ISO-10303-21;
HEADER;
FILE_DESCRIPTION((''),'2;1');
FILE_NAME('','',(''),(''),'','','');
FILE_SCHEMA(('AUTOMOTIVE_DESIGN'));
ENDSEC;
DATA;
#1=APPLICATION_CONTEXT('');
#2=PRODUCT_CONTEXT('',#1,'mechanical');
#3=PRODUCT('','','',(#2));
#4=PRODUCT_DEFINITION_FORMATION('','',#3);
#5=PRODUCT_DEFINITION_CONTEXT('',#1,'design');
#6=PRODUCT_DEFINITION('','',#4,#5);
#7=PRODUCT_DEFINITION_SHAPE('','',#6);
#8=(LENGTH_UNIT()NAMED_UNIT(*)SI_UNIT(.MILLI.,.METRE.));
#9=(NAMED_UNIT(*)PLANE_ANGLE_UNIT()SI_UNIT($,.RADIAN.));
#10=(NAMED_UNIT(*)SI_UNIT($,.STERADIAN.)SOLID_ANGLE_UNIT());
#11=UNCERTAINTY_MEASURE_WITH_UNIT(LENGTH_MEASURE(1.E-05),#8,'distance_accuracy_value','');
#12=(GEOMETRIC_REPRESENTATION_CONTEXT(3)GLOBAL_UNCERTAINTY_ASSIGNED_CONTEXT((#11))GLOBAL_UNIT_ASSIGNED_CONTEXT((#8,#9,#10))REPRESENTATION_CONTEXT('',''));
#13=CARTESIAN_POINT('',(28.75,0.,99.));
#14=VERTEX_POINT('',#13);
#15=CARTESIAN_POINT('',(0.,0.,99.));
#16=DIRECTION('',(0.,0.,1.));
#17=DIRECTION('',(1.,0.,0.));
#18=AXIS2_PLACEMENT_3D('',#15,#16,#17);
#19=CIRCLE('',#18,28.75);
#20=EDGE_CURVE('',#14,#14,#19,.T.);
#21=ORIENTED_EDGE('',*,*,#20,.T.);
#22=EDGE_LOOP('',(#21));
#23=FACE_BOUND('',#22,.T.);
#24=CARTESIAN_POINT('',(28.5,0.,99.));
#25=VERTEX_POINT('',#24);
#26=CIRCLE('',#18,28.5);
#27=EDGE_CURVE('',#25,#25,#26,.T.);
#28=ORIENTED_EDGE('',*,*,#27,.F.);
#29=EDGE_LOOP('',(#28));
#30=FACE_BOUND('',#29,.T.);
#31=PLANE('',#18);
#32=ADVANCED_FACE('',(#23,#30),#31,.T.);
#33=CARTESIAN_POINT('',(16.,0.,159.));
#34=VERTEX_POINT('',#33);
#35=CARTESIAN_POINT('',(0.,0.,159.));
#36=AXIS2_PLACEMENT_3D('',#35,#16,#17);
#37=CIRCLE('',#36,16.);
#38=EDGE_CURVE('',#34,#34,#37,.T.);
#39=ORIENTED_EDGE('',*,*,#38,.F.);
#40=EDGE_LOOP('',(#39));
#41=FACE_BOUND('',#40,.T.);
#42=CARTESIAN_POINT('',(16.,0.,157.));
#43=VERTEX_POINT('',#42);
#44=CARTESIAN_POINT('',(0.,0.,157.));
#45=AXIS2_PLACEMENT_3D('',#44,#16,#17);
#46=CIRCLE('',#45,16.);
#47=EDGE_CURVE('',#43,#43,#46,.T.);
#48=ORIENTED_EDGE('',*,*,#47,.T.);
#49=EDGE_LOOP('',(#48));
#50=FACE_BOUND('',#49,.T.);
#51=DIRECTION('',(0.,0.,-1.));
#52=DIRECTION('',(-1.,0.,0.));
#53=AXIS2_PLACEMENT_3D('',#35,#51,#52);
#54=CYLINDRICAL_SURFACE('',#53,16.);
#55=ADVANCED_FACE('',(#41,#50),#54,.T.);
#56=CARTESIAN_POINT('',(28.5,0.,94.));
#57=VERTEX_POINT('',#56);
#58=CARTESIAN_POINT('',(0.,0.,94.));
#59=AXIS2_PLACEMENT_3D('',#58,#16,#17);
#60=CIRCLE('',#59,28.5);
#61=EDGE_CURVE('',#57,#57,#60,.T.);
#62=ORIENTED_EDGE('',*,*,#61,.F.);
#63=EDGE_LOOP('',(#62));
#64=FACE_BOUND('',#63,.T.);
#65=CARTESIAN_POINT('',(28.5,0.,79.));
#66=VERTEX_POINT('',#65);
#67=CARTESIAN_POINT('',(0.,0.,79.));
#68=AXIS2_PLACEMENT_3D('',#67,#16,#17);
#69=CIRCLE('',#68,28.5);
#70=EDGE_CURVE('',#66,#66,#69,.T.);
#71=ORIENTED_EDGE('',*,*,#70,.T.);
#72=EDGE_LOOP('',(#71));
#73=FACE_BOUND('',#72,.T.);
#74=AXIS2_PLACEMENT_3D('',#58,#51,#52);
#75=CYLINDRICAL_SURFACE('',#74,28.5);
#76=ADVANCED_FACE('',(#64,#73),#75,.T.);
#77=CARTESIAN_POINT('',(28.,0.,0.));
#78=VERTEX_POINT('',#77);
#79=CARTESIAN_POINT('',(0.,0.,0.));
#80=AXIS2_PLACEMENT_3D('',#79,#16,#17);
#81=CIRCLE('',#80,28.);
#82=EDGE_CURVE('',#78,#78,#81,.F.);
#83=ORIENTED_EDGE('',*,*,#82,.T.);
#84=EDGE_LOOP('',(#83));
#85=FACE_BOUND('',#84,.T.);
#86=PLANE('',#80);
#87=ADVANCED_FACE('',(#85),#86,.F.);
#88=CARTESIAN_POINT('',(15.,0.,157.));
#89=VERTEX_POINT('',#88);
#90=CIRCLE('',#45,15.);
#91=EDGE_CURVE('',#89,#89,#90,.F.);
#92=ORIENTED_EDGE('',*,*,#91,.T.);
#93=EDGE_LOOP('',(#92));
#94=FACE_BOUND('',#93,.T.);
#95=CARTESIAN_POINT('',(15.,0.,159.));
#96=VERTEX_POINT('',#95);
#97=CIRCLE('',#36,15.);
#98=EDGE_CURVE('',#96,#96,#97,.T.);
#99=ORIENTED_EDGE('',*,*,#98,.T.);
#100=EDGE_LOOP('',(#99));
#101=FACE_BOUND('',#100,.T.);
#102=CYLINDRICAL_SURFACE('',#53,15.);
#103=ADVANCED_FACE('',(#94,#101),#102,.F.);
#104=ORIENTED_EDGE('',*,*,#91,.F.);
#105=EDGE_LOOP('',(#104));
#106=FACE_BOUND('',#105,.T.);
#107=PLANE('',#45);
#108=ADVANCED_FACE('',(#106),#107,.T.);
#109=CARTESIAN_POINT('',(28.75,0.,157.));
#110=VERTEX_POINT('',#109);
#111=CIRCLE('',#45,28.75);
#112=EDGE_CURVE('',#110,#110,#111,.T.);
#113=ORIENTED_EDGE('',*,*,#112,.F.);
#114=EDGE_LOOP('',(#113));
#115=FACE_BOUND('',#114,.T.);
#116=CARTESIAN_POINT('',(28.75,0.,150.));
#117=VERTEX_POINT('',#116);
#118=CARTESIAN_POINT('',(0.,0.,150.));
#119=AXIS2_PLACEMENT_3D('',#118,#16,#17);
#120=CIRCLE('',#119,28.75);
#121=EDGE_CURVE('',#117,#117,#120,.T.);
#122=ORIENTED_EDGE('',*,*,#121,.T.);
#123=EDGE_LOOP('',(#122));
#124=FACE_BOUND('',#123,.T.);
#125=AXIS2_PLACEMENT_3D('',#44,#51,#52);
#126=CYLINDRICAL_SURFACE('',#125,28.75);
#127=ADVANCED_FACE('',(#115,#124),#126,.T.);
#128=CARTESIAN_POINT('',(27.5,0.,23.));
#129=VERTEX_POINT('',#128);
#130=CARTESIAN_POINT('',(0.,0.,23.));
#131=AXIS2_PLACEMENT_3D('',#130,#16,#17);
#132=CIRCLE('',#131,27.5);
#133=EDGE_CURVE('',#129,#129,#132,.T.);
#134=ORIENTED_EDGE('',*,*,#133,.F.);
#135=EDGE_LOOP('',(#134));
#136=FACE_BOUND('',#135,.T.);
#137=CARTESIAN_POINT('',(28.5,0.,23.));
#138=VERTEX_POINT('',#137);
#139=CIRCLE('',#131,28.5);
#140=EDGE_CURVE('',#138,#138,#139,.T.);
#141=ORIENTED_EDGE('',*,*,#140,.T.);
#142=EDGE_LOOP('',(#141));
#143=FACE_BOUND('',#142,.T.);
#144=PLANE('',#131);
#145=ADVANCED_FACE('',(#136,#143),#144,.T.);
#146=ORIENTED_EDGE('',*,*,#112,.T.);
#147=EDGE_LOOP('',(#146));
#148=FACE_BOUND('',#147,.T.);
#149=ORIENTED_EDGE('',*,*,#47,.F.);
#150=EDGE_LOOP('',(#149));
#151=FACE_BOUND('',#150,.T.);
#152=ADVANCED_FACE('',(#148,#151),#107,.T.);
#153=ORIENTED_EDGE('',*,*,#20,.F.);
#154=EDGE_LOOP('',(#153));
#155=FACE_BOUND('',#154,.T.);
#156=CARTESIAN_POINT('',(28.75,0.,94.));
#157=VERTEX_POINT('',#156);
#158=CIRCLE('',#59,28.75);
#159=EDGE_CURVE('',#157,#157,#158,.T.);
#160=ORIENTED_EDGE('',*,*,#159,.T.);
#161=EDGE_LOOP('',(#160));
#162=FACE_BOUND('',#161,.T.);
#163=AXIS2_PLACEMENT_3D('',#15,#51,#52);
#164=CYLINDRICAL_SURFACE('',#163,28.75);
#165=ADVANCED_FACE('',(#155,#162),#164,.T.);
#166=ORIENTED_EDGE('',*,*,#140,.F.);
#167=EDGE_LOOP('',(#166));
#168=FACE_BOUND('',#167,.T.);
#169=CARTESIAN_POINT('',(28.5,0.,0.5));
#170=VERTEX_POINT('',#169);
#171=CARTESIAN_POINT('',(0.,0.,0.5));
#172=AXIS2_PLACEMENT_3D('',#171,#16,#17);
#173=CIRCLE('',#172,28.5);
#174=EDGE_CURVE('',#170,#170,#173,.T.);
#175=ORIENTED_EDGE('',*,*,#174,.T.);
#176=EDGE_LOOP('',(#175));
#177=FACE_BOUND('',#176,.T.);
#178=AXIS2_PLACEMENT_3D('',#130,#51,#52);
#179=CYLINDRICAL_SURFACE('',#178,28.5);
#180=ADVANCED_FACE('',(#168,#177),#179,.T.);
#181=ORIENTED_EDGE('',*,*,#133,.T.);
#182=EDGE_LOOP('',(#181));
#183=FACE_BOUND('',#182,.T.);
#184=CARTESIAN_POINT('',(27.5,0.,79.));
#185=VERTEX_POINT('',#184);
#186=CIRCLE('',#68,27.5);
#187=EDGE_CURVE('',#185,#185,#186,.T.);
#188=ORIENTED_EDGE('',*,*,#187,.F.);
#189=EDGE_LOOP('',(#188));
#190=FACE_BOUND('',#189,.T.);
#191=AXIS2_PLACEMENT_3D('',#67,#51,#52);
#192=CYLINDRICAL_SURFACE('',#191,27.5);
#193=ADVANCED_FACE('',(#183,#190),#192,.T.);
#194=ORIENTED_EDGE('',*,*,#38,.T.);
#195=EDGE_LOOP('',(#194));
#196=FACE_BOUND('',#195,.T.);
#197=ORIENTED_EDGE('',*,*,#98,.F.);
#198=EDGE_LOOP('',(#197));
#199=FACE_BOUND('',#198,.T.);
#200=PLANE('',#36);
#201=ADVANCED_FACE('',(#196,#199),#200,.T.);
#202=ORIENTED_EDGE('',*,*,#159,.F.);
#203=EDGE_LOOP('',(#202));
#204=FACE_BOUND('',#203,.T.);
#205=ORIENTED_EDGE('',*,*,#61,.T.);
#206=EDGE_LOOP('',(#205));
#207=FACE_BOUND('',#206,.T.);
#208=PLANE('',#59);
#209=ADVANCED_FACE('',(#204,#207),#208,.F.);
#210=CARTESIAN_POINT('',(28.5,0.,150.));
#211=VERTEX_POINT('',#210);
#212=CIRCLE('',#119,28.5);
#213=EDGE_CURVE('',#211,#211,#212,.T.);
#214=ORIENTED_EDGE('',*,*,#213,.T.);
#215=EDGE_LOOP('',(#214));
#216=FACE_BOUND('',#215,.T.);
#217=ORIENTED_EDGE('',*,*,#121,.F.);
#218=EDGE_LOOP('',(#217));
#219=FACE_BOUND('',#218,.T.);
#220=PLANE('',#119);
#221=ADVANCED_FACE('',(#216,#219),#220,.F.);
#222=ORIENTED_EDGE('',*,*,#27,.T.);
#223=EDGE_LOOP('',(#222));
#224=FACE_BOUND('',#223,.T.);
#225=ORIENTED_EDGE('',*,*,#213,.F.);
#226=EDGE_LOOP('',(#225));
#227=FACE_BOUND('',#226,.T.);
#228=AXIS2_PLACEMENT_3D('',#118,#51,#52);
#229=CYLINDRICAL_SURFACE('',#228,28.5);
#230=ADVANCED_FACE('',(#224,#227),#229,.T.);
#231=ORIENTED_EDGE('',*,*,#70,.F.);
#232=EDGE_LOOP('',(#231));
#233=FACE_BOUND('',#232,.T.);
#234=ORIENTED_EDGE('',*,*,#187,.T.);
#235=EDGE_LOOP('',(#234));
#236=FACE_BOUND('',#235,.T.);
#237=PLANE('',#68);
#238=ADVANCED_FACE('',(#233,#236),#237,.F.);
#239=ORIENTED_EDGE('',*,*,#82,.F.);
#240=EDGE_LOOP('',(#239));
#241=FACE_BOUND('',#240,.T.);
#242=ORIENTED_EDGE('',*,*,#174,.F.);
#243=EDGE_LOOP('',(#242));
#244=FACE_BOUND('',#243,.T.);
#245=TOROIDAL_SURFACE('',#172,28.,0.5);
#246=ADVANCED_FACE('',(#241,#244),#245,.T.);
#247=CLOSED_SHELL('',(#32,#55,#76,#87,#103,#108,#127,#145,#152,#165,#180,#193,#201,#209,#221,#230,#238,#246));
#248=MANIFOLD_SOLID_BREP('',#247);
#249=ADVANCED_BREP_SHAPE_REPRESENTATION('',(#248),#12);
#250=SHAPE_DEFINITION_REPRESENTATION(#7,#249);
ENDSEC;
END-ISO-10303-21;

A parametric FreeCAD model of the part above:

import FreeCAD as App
import Part
import Sketcher
Q = App.Units.Quantity


def edges_at(feature, points):
    """Names of the edges that pass closest to the given points."""
    edges = feature.Shape.Edges
    near = lambda p: min(range(len(edges)), key=lambda i: edges[i].distToShape(Part.Vertex(*p))[0])
    return sorted({f"Edge{near(p) + 1}" for p in points})

doc = App.newDocument("Part")
body = doc.addObject("PartDesign::Body", "Body")

sketch1 = body.newObject("Sketcher::SketchObject", "Sketch")
sketch1.AttachmentSupport = (doc.getObject("XY_Plane"), [""])
sketch1.MapMode = "FlatFace"
sketch1.addGeometry(Part.Circle(App.Vector(0, 0, 0), App.Vector(0, 0, 1), 28), False)
sketch1.addConstraint([
    Sketcher.Constraint("Coincident", 0, 3, -1, 1),
    Sketcher.Constraint("Diameter", 0, Q("57 mm")),
])
pad1 = body.newObject("PartDesign::Pad", "Pad")
pad1.Profile = sketch1
pad1.Length = 23

sketch2 = body.newObject("Sketcher::SketchObject", "Sketch001")
sketch2.AttachmentSupport = (doc.getObject("XY_Plane"), [""])
sketch2.MapMode = "FlatFace"
sketch2.AttachmentOffset = App.Placement(App.Vector(0, 0, 23), App.Rotation())
sketch2.addGeometry(Part.Circle(App.Vector(0, 0, 0), App.Vector(0, 0, 1), 28), False)
sketch2.addConstraint([
    Sketcher.Constraint("Coincident", 0, 3, -1, 1),
    Sketcher.Constraint("Diameter", 0, Q("55 mm")),
])
pad2 = body.newObject("PartDesign::Pad", "Pad001")
pad2.Profile = sketch2
pad2.Length = 56

sketch3 = body.newObject("Sketcher::SketchObject", "Sketch002")
sketch3.AttachmentSupport = (doc.getObject("XY_Plane"), [""])
sketch3.MapMode = "FlatFace"
sketch3.AttachmentOffset = App.Placement(App.Vector(0, 0, 79), App.Rotation())
sketch3.addGeometry(Part.Circle(App.Vector(0, 0, 0), App.Vector(0, 0, 1), 28), False)
sketch3.addConstraint([
    Sketcher.Constraint("Coincident", 0, 3, -1, 1),
    Sketcher.Constraint("Diameter", 0, Q("57 mm")),
])
pad3 = body.newObject("PartDesign::Pad", "Pad002")
pad3.Profile = sketch3
pad3.Length = 15

sketch4 = body.newObject("Sketcher::SketchObject", "Sketch003")
sketch4.AttachmentSupport = (doc.getObject("XY_Plane"), [""])
sketch4.MapMode = "FlatFace"
sketch4.AttachmentOffset = App.Placement(App.Vector(0, 0, 94), App.Rotation())
sketch4.addGeometry(Part.Circle(App.Vector(0, 0, 0), App.Vector(0, 0, 1), 29), False)
sketch4.addConstraint([
    Sketcher.Constraint("Coincident", 0, 3, -1, 1),
    Sketcher.Constraint("Diameter", 0, Q("57.5 mm")),
])
pad4 = body.newObject("PartDesign::Pad", "Pad003")
pad4.Profile = sketch4
pad4.Length = 5

sketch5 = body.newObject("Sketcher::SketchObject", "Sketch004")
sketch5.AttachmentSupport = (doc.getObject("XY_Plane"), [""])
sketch5.MapMode = "FlatFace"
sketch5.AttachmentOffset = App.Placement(App.Vector(0, 0, 99), App.Rotation())
sketch5.addGeometry(Part.Circle(App.Vector(0, 0, 0), App.Vector(0, 0, 1), 28), False)
sketch5.addConstraint([
    Sketcher.Constraint("Coincident", 0, 3, -1, 1),
    Sketcher.Constraint("Diameter", 0, Q("57 mm")),
])
pad5 = body.newObject("PartDesign::Pad", "Pad004")
pad5.Profile = sketch5
pad5.Length = 51

sketch6 = body.newObject("Sketcher::SketchObject", "Sketch005")
sketch6.AttachmentSupport = (doc.getObject("XY_Plane"), [""])
sketch6.MapMode = "FlatFace"
sketch6.AttachmentOffset = App.Placement(App.Vector(0, 0, 150), App.Rotation())
sketch6.addGeometry(Part.Circle(App.Vector(0, 0, 0), App.Vector(0, 0, 1), 29), False)
sketch6.addConstraint([
    Sketcher.Constraint("Coincident", 0, 3, -1, 1),
    Sketcher.Constraint("Diameter", 0, Q("57.5 mm")),
])
pad6 = body.newObject("PartDesign::Pad", "Pad005")
pad6.Profile = sketch6
pad6.Length = 7
doc.recompute()

fillet = body.newObject("PartDesign::Fillet", "Fillet")
fillet.Base = (pad6, edges_at(pad6, [(-28.5, 0, 0)]))
fillet.Radius = 0.5

sketch7 = body.newObject("Sketcher::SketchObject", "Sketch006")
sketch7.AttachmentSupport = (doc.getObject("XY_Plane"), [""])
sketch7.MapMode = "FlatFace"
sketch7.AttachmentOffset = App.Placement(App.Vector(0, 0, 157), App.Rotation())
sketch7.addGeometry([
    Part.Circle(App.Vector(0, 0, 0), App.Vector(0, 0, 1), 16),
    Part.Circle(App.Vector(0, 0, 0), App.Vector(0, 0, 1), 15),
], False)
sketch7.addConstraint([
    Sketcher.Constraint("Coincident", 0, 3, -1, 1),
    Sketcher.Constraint("Coincident", 1, 3, -1, 1),
    Sketcher.Constraint("Diameter", 0, Q("32 mm")),
    Sketcher.Constraint("Diameter", 1, Q("30 mm")),
])
pad7 = body.newObject("PartDesign::Pad", "Pad006")
pad7.Profile = sketch7
pad7.Length = 2

doc.recompute()
